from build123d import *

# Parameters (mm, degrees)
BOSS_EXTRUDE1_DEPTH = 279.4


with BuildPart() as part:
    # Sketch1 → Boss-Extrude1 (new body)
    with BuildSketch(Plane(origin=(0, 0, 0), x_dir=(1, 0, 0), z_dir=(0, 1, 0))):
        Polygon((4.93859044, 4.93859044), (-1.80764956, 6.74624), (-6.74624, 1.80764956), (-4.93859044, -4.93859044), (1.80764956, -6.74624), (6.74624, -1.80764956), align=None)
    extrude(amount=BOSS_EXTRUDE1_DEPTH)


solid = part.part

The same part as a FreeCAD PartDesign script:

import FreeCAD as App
import Part
import Sketcher

V = App.Vector
Q = App.Units.Quantity


def add_polygon(sketch, points):
    """Adds a closed chain of lines whose ends are joined by coincident constraints."""
    first, n = sketch.GeometryCount, len(points)
    for a, b in zip(points, points[1:] + points[:1]):
        sketch.addGeometry(Part.LineSegment(App.Vector(*a, 0), App.Vector(*b, 0)), False)
    for i in range(n):
        sketch.addConstraint(Sketcher.Constraint("Coincident", first + i, 2, first + (i + 1) % n, 1))

doc = App.newDocument("Part")
body = doc.addObject("PartDesign::Body", "Body")

# Sketch on XZ plane
sketch1 = body.newObject("Sketcher::SketchObject", "Sketch")
sketch1.AttachmentSupport = (doc.getObject("XZ_Plane"), [""])
sketch1.MapMode = "FlatFace"
add_polygon(sketch1, [(5, -5), (-2, -7), (-7, -2), (-5, 5), (2, 7), (7, 2)])  # lines 0-5
sketch1.addConstraint([
    Sketcher.Constraint("Symmetric", 0, 2, 3, 2, -1, 1),
    Sketcher.Constraint("Symmetric", 1, 2, 4, 2, -1, 1),
    Sketcher.Constraint("Symmetric", 2, 2, 5, 2, -1, 1),
    Sketcher.Constraint("Equal", 0, 1),
    Sketcher.Constraint("Equal", 1, 2),
    Sketcher.Constraint("Angle", 0, Q("-165 deg")),
    Sketcher.Constraint("Angle", 1, Q("135 deg")),
    Sketcher.Constraint("Angle", 2, Q("75 deg")),
    Sketcher.Constraint("DistanceY", 0, 2, -1, 1, Q("0.2656 in")),
])
pad1 = body.newObject("PartDesign::Pad", "Pad")
pad1.Profile = sketch1
pad1.Length = Q("11 in")
pad1.Reversed = True

doc.recompute()
